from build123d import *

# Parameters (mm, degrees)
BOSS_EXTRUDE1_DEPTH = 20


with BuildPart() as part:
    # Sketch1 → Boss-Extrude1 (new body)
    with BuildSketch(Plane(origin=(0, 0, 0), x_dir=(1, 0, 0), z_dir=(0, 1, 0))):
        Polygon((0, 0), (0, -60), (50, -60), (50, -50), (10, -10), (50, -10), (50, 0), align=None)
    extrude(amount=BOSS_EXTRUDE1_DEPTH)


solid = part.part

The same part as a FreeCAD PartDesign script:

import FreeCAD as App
import Part
import Sketcher

V = App.Vector
Q = App.Units.Quantity


def add_polygon(sketch, points):
    """Adds a closed chain of lines whose ends are joined by coincident constraints."""
    first, n = sketch.GeometryCount, len(points)
    for a, b in zip(points, points[1:] + points[:1]):
        sketch.addGeometry(Part.LineSegment(App.Vector(*a, 0), App.Vector(*b, 0)), False)
    for i in range(n):
        sketch.addConstraint(Sketcher.Constraint("Coincident", first + i, 2, first + (i + 1) % n, 1))

doc = App.newDocument("Part")
body = doc.addObject("PartDesign::Body", "Body")

sketch1 = body.newObject("Sketcher::SketchObject", "Sketch")
sketch1.AttachmentSupport = (doc.getObject("XZ_Plane"), [""])
sketch1.MapMode = "FlatFace"
add_polygon(sketch1, [(0, 0), (0, 60), (50, 60), (50, 50), (10, 10), (50, 10), (50, 0)])
sketch1.addConstraint([
    Sketcher.Constraint("Vertical", 0),
    Sketcher.Constraint("Horizontal", 1),
    Sketcher.Constraint("Vertical", 2),
    Sketcher.Constraint("Horizontal", 4),
    Sketcher.Constraint("Vertical", 5),
    Sketcher.Constraint("Horizontal", 6),
    Sketcher.Constraint("Coincident", 6, 2, -1, 1),
    Sketcher.Constraint("Vertical", 2, 2, 4, 2),
    Sketcher.Constraint("Equal", 2, 5),
    Sketcher.Constraint("DistanceX", 1, 1, 1, 2, Q("50 mm")),
    Sketcher.Constraint("DistanceX", 4, 1, 4, 2, Q("40 mm")),
    Sketcher.Constraint("DistanceY", 0, 1, 0, 2, Q("60 mm")),
    Sketcher.Constraint("DistanceY", 2, 2, 2, 1, Q("10 mm")),
])
pad1 = body.newObject("PartDesign::Pad", "Pad")
pad1.Profile = sketch1
pad1.Length = 20
pad1.Reversed = True

doc.recompute()
